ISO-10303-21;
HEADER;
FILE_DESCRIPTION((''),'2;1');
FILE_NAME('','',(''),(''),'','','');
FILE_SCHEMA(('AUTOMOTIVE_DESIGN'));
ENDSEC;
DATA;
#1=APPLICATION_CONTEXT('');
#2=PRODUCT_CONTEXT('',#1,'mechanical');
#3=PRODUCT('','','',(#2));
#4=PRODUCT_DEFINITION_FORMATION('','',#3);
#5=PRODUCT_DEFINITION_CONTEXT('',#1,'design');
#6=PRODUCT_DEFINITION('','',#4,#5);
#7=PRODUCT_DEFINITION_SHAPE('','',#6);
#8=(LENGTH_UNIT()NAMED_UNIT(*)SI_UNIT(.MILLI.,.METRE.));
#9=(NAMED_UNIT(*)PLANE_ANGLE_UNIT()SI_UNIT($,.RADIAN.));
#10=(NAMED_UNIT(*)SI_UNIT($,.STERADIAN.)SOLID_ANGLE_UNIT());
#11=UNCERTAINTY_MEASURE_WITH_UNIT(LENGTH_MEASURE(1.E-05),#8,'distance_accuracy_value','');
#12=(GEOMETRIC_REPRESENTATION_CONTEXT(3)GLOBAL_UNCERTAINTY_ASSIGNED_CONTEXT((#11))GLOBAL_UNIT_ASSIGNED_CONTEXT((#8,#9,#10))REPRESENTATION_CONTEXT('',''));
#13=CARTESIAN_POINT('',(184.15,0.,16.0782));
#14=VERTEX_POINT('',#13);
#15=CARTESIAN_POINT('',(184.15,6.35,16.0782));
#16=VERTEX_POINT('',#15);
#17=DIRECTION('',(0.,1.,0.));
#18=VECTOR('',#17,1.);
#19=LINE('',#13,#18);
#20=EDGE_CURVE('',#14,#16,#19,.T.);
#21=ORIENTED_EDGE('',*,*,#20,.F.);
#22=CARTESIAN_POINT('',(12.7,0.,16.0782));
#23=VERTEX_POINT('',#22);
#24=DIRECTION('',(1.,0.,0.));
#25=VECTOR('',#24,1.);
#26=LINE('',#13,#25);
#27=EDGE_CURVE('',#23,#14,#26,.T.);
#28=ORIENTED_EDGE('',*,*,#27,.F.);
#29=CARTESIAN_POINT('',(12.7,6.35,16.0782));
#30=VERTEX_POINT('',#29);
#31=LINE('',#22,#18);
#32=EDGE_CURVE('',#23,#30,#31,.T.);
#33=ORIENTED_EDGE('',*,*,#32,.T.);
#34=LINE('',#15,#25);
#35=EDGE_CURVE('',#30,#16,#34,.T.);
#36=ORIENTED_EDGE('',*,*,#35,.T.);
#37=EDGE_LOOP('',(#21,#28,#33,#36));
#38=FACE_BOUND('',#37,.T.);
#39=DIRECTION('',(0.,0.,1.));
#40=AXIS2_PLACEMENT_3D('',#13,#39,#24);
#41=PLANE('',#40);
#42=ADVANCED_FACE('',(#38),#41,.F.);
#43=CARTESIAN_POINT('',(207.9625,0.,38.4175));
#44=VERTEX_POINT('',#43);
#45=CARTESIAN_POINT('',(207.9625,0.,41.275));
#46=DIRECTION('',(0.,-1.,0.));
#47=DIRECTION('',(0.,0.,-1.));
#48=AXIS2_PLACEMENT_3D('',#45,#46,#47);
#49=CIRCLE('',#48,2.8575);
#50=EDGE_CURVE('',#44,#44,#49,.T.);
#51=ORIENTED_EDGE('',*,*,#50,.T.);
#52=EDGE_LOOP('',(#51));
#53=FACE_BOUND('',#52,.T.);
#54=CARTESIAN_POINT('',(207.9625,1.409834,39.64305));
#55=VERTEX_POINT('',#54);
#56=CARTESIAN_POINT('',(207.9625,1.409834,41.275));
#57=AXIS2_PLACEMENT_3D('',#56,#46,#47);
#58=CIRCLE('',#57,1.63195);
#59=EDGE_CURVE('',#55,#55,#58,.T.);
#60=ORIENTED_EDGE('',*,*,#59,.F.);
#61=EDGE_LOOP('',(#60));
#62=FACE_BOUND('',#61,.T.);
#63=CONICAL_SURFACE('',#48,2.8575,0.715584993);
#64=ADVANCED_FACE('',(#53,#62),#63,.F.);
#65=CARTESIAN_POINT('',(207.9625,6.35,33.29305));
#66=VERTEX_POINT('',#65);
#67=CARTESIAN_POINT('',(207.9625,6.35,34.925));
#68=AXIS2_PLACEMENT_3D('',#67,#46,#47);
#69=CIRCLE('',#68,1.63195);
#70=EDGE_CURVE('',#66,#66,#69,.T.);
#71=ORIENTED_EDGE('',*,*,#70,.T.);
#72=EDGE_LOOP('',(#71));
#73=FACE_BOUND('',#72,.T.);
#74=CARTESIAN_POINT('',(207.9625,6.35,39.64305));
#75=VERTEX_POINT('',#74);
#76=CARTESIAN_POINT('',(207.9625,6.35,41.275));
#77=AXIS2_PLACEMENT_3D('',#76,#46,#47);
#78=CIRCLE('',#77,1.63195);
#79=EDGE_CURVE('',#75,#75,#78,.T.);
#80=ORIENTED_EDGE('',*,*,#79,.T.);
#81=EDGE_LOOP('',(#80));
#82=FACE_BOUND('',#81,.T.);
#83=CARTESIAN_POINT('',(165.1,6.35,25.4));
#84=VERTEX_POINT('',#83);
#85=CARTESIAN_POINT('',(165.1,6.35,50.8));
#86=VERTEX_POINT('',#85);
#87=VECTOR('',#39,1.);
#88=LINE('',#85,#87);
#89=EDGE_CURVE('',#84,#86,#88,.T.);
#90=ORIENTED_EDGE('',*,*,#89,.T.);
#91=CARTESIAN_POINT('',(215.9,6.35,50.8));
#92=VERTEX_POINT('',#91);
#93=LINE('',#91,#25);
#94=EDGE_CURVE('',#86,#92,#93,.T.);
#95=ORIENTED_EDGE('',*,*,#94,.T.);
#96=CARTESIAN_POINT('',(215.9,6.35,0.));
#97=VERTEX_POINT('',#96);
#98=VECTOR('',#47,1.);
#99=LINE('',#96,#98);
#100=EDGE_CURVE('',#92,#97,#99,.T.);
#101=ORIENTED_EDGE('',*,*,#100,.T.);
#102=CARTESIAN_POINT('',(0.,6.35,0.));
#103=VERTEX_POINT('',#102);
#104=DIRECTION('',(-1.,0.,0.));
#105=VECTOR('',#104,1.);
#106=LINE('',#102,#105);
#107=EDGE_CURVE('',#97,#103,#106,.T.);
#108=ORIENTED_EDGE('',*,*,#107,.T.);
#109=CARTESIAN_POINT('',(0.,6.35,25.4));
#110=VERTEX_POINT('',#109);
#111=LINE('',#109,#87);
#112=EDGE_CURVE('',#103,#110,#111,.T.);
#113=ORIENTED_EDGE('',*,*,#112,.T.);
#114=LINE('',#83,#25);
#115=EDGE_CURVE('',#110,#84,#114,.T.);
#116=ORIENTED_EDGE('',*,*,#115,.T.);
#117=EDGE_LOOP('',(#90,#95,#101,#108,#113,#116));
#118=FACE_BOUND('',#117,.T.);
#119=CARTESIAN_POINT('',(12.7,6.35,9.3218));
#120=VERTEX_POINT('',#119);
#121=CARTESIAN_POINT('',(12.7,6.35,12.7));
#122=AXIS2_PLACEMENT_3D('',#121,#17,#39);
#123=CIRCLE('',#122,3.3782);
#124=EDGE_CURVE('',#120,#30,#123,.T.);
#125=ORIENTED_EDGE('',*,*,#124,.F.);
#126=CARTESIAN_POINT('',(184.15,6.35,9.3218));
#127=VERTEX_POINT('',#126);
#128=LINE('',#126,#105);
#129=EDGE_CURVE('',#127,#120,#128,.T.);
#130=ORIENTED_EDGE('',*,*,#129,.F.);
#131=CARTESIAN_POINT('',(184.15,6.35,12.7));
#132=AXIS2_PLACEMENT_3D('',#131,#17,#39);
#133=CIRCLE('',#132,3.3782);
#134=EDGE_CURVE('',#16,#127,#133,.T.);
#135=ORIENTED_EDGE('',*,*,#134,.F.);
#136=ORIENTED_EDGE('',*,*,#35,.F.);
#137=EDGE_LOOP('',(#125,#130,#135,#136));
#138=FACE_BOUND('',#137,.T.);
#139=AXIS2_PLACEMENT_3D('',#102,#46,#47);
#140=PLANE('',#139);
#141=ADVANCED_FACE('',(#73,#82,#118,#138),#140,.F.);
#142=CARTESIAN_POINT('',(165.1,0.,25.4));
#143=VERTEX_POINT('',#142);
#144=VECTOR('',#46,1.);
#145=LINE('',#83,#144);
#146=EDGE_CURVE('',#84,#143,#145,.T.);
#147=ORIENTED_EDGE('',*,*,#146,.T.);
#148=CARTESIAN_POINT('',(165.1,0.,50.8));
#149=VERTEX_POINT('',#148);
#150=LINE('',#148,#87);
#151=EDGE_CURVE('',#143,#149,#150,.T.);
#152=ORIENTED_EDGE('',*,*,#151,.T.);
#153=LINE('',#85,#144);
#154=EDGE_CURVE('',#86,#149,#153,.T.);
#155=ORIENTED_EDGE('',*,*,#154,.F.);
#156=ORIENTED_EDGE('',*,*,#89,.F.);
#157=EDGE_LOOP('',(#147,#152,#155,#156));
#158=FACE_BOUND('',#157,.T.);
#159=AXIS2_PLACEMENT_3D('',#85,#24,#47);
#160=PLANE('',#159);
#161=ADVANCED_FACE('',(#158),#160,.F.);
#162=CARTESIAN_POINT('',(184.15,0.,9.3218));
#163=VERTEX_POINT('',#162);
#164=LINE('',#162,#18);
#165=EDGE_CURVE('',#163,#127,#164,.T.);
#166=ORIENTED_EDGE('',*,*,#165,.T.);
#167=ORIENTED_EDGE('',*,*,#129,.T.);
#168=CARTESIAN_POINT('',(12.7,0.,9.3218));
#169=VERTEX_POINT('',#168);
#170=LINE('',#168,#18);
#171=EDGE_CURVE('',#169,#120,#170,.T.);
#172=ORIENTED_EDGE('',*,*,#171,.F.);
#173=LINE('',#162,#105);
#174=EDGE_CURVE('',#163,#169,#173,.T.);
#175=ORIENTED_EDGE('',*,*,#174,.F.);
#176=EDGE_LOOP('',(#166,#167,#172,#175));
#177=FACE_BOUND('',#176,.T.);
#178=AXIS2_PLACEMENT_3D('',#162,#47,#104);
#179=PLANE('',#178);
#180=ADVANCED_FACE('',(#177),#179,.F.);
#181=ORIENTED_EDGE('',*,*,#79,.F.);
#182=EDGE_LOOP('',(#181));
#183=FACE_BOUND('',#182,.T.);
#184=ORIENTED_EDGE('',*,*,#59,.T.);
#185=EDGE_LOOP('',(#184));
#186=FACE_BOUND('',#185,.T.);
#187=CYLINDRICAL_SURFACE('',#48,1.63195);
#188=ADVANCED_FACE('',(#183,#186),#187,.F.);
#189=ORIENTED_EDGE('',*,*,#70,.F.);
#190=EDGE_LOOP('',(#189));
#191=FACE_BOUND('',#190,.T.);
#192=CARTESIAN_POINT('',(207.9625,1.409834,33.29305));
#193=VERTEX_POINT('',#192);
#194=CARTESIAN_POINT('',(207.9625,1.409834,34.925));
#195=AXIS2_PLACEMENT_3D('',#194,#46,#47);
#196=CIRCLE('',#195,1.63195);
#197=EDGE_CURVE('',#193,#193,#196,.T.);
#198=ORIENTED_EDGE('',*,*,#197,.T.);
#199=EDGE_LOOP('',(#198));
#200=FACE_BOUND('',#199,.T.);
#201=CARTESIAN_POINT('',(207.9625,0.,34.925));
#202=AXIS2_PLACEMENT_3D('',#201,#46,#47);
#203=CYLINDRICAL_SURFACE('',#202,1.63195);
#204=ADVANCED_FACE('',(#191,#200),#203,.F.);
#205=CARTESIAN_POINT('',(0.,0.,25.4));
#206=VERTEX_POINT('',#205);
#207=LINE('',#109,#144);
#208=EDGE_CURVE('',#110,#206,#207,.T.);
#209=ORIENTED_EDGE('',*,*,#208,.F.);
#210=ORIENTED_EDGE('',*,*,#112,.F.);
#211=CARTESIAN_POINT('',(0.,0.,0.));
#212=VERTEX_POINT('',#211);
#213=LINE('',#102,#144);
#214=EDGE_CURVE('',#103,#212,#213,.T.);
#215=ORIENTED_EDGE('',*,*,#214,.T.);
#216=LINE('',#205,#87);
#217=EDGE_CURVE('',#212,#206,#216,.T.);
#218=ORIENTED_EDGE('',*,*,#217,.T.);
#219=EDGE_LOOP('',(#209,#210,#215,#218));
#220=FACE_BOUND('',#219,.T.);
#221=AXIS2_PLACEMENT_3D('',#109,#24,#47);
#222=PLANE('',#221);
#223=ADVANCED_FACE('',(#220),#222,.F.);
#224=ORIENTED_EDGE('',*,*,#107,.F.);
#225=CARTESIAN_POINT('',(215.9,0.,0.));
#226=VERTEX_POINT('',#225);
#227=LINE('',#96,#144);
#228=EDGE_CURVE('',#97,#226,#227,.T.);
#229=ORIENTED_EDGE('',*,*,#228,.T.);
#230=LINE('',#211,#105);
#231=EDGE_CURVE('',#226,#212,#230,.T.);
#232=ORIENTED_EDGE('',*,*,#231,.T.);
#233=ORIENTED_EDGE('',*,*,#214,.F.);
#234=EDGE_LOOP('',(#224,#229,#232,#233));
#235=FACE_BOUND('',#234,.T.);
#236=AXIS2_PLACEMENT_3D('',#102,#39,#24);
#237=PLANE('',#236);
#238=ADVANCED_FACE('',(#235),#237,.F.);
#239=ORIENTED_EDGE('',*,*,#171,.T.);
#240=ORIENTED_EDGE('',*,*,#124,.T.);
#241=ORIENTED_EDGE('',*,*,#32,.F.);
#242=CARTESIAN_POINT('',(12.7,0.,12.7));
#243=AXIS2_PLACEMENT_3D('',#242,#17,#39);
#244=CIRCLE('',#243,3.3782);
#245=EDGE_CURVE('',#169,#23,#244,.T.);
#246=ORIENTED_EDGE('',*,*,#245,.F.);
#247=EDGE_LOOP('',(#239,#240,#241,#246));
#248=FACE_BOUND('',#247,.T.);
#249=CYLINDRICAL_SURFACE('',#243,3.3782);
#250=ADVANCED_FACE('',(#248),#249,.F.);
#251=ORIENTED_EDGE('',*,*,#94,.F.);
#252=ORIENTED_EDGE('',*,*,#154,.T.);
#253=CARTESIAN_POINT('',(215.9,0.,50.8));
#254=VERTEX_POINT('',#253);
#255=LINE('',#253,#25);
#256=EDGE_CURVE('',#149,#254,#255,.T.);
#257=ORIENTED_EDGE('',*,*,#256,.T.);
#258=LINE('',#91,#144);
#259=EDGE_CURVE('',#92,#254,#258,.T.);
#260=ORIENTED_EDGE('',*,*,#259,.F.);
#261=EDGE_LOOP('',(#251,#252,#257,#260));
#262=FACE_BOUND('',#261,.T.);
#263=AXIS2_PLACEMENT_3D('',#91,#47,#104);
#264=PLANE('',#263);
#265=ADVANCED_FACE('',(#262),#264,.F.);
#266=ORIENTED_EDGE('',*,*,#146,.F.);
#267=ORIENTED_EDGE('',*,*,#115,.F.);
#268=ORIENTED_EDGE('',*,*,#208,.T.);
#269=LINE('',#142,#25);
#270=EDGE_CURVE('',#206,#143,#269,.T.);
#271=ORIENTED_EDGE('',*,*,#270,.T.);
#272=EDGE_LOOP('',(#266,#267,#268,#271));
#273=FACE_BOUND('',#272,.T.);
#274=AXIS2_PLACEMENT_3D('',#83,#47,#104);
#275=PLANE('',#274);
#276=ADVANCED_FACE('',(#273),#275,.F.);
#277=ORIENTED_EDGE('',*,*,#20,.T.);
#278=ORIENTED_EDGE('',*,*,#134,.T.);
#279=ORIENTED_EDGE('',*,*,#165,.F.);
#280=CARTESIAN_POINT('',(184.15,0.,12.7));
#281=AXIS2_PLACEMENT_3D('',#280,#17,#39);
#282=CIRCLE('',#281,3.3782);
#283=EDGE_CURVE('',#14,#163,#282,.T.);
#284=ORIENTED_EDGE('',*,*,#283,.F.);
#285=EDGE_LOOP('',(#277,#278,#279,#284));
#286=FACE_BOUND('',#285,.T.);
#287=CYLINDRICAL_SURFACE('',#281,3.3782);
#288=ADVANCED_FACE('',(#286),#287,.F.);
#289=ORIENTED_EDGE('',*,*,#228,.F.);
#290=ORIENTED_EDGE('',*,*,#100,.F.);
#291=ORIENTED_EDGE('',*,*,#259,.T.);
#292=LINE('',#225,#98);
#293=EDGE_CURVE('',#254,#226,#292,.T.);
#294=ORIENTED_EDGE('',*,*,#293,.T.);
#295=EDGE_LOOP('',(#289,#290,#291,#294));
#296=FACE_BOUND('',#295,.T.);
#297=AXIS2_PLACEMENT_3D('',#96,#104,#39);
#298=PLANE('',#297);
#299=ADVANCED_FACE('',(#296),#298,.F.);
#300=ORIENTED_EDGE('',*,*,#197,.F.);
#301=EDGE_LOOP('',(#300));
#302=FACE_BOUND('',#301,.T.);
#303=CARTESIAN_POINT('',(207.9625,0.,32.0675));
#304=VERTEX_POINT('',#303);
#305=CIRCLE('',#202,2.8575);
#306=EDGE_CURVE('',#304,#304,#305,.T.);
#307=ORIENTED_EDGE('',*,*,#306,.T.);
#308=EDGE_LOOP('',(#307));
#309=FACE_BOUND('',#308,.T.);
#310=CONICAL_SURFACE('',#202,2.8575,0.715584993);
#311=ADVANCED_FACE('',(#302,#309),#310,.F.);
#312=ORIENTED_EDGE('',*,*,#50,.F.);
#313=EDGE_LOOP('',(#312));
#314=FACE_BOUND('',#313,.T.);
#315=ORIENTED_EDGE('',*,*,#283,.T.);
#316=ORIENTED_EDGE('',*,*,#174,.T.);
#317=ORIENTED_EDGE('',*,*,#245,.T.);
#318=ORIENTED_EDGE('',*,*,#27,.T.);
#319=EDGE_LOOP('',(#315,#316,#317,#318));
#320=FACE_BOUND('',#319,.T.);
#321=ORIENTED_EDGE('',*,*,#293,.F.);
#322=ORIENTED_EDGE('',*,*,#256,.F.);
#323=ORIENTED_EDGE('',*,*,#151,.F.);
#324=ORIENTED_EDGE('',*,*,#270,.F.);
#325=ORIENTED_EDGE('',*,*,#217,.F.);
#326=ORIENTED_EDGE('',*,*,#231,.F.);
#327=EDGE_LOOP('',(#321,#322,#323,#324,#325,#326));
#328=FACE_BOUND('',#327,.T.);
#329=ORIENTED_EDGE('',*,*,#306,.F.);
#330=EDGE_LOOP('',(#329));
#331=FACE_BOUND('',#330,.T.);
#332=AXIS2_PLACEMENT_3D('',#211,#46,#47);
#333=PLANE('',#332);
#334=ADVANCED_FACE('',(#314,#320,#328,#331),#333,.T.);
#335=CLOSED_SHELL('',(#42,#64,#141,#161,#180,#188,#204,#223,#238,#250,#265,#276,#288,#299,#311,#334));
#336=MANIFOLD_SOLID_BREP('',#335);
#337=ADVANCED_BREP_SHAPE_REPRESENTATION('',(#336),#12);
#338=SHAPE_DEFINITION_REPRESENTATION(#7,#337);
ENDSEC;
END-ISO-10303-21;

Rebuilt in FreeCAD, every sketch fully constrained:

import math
import FreeCAD as App
import Part
import Sketcher

V = App.Vector
Q = App.Units.Quantity

doc = App.newDocument("Part")
params = doc.addObject("Spreadsheet::Sheet", "Params")
for row, (alias, value) in enumerate([
    ("sketch1_width", "2 in"),
    ("sketch1_width2", "8.5 in"),
    ("pad1_length", "0.25 in"),
    ("sketch2_radius", "0.133 in"),
    ("sketch2_width", "6.75 in"),
    ("hole_diameter", "0.1285 in"),
    ("hole_csink_diameter", "0.225 in"),
], start=1):
    params.set(f"A{row}", alias)
    params.set(f"B{row}", "=" + value)
    params.setAlias(f"B{row}", alias)

body = doc.addObject("PartDesign::Body", "Body")

# Sketch on XZ plane
sketch1 = body.newObject("Sketcher::SketchObject", "Sketch")
sketch1.AttachmentSupport = (doc.getObject("XZ_Plane"), [""])
sketch1.MapMode = "FlatFace"
sketch1.addGeometry([
    Part.LineSegment(V(216, 0, 0), V(0, 0, 0)),  # 0
    Part.LineSegment(V(0, 0, 0), V(0, 25, 0)),  # 1
    Part.LineSegment(V(0, 25, 0), V(165, 25, 0)),  # 2
    Part.LineSegment(V(165, 25, 0), V(165, 51, 0)),  # 3
    Part.LineSegment(V(165, 51, 0), V(216, 51, 0)),  # 4
    Part.LineSegment(V(216, 51, 0), V(216, 0, 0)),  # 5
], False)
sketch1.addConstraint([
    Sketcher.Constraint("Coincident", 0, 2, 1, 1),
    Sketcher.Constraint("Coincident", 1, 2, 2, 1),
    Sketcher.Constraint("Coincident", 2, 2, 3, 1),
    Sketcher.Constraint("Coincident", 3, 2, 4, 1),
    Sketcher.Constraint("Coincident", 4, 2, 5, 1),
    Sketcher.Constraint("Coincident", 5, 2, 0, 1),
    Sketcher.Constraint("Horizontal", 0),
    Sketcher.Constraint("Vertical", 1),
    Sketcher.Constraint("Horizontal", 2),
    Sketcher.Constraint("Vertical", 3),
    Sketcher.Constraint("Horizontal", 4),
    Sketcher.Constraint("Vertical", 5),
    Sketcher.Constraint("Coincident", 0, 2, -1, 1),
    Sketcher.Constraint("Equal", 1, 3),
    Sketcher.Constraint("Equal", 4, 5),
    Sketcher.Constraint("DistanceX", 4, 1, 4, 2, Q("2 in")),
    Sketcher.Constraint("DistanceX", 0, 2, 0, 1, Q("8.5 in")),
])
sketch1.setExpression("Constraints[15]", "Params.sketch1_width")
sketch1.setExpression("Constraints[16]", "Params.sketch1_width2")
pad1 = body.newObject("PartDesign::Pad", "Pad")
pad1.Profile = sketch1
pad1.setExpression("Length", "Params.pad1_length")
pad1.Reversed = True

# Sketch on XZ plane
sketch2 = body.newObject("Sketcher::SketchObject", "Sketch001")
sketch2.AttachmentSupport = (doc.getObject("XZ_Plane"), [""])
sketch2.MapMode = "FlatFace"
sketch2.AttachmentOffset = App.Placement(V(0, 0, -0.25 * 25.4), App.Rotation())
sketch2.addGeometry([
    Part.LineSegment(V(12.7, 16.1, 0), V(184.2, 16.1, 0)),
    Part.ArcOfCircle(Part.Circle(V(184.2, 12.7, 0), V(0, 0, 1), 3.4), math.radians(-90), math.radians(90)),
    Part.LineSegment(V(184.2, 9.3, 0), V(12.7, 9.3, 0)),
    Part.ArcOfCircle(Part.Circle(V(12.7, 12.7, 0), V(0, 0, 1), 3.4), math.radians(90), math.radians(270)),
], False)
sketch2.addConstraint([
    Sketcher.Constraint("Tangent", 0, 2, 1, 2),
    Sketcher.Constraint("Tangent", 1, 1, 2, 1),
    Sketcher.Constraint("Tangent", 2, 2, 3, 2),
    Sketcher.Constraint("Tangent", 3, 1, 0, 1),
    Sketcher.Constraint("Horizontal", 0),
    Sketcher.Constraint("Horizontal", 2),
    Sketcher.Constraint("Radius", 1, Q("0.133 in")),
    Sketcher.Constraint("DistanceX", 0, 1, 0, 2, Q("6.75 in")),
    Sketcher.Constraint("DistanceY", -1, 1, 1, 3, Q("0.5 in")),
    Sketcher.Constraint("DistanceX", -1, 1, 3, 3, Q("0.5 in")),
])
sketch2.setExpression("Constraints[6]", "Params.sketch2_radius")
sketch2.setExpression("Constraints[7]", "Params.sketch2_width")
pocket1 = body.newObject("PartDesign::Pocket", "Pocket")
pocket1.Profile = sketch2
pocket1.Type = "ThroughAll"
pocket1.Reversed = True

# Sketch on XZ plane
sketch3 = body.newObject("Sketcher::SketchObject", "Sketch002")
sketch3.AttachmentSupport = (doc.getObject("XZ_Plane"), [""])
sketch3.MapMode = "FlatFace"
sketch3.addGeometry([
    Part.Circle(V(208, 34.9, 0), V(0, 0, 1), 1.6),
    Part.Circle(V(208, 41.3, 0), V(0, 0, 1), 1.6),
], False)
sketch3.addConstraint([
    Sketcher.Constraint("Equal", 0, 1),
    Sketcher.Constraint("Vertical", 0, 3, 1, 3),
    Sketcher.Constraint("Diameter", 0, Q("0.1285 in")),
    Sketcher.Constraint("DistanceY", 0, 3, 1, 3, Q("0.25 in")),
    Sketcher.Constraint("DistanceX", -1, 1, 0, 3, Q("8.1875 in")),
    Sketcher.Constraint("DistanceY", -1, 1, 0, 3, Q("1.375 in")),
])
doc.recompute()
hole = body.newObject("PartDesign::Hole", "Hole")
hole.Profile = sketch3
hole.ThreadType = "None"
hole.setExpression("Diameter", "Params.hole_diameter")
hole.DepthType = "ThroughAll"
hole.HoleCutType = "Countersink"
hole.setExpression("HoleCutDiameter", "Params.hole_csink_diameter")
hole.HoleCutCountersinkAngle = 82

doc.recompute()
